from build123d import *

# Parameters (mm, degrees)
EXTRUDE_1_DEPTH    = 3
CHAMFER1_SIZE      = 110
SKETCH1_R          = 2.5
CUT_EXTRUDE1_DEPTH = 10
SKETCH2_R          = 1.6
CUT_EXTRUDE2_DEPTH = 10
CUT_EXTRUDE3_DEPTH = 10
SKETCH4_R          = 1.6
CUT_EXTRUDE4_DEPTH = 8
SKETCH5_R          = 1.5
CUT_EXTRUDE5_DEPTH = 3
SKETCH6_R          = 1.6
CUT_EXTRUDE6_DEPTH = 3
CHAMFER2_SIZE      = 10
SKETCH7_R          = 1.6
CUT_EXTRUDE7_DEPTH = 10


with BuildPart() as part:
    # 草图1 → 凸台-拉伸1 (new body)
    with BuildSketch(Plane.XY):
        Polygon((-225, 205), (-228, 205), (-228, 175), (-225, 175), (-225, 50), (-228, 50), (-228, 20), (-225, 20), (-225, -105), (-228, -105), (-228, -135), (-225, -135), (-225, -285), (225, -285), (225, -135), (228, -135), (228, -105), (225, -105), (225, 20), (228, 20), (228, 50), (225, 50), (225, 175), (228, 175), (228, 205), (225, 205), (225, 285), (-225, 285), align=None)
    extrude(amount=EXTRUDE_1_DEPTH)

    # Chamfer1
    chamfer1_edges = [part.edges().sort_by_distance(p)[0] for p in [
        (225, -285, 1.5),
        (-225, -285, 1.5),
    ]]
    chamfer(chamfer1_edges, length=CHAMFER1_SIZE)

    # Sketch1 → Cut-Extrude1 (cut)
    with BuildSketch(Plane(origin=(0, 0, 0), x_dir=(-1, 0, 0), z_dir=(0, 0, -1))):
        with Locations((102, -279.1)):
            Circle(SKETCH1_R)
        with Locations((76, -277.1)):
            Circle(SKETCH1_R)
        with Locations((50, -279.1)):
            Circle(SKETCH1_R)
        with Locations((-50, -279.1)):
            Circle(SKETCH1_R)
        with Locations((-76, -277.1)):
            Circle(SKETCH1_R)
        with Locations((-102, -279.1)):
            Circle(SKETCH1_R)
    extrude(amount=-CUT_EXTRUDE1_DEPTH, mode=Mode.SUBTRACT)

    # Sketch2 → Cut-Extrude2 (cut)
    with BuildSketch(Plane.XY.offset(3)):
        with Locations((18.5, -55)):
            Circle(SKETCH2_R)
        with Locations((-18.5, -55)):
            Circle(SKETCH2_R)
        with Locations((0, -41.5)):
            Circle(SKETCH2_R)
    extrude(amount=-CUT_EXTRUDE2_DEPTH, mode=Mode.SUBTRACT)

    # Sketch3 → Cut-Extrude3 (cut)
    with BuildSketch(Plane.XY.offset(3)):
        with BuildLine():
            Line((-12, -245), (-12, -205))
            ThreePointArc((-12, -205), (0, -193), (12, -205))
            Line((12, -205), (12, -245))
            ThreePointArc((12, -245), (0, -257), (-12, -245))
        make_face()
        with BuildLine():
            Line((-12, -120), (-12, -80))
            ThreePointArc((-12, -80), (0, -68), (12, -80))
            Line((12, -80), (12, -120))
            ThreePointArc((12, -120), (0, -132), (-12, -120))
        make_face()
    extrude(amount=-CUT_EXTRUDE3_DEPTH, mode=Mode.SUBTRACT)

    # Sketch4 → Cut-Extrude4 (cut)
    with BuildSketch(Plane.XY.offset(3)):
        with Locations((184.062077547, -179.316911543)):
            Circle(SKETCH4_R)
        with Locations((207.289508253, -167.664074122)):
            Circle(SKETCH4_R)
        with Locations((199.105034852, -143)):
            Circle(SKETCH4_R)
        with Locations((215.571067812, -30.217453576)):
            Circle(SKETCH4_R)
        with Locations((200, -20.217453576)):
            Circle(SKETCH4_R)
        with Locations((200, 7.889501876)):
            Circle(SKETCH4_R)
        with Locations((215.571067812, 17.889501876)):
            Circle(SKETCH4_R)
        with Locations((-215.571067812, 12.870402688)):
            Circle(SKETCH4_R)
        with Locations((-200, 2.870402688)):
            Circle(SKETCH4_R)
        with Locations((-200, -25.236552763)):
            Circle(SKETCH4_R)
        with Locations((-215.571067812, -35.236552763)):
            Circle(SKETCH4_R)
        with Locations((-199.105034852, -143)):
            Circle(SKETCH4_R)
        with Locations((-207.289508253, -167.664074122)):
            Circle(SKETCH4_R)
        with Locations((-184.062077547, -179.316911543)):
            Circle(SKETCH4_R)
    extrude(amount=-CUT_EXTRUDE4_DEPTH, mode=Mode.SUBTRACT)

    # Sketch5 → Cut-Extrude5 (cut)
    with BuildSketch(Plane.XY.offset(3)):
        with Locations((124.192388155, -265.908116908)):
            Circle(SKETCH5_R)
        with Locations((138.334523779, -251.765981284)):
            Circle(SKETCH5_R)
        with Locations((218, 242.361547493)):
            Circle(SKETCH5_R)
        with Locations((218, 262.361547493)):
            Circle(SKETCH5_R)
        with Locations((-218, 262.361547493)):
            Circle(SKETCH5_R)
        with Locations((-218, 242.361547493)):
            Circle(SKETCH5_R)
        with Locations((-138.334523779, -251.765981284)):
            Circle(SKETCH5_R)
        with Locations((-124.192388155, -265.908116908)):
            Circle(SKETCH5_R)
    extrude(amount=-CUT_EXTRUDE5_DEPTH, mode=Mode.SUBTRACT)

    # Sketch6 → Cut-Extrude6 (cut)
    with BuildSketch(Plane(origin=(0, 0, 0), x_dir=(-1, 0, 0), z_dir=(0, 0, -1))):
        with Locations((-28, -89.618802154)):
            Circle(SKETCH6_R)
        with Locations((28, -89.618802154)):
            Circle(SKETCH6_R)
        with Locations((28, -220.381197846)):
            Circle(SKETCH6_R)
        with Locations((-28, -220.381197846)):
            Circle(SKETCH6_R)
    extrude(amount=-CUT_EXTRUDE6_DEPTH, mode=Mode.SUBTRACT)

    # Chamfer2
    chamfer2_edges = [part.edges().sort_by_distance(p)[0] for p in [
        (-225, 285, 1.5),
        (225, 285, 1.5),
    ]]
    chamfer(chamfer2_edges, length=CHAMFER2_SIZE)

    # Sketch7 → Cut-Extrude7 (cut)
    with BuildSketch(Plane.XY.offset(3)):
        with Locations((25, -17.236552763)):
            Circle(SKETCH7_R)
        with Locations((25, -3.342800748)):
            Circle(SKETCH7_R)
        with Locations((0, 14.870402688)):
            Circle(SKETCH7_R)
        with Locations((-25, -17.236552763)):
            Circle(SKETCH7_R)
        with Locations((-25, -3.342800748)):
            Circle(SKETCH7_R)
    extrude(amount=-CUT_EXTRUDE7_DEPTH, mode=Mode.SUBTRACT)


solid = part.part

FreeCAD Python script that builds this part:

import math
import FreeCAD as App
import Part
import Sketcher

V = App.Vector


def edges_at(feature, points):
    """Names of the edges that pass closest to the given points."""
    edges = feature.Shape.Edges
    near = lambda p: min(range(len(edges)), key=lambda i: edges[i].distToShape(Part.Vertex(*p))[0])
    return sorted({f"Edge{near(p) + 1}" for p in points})


def add_polygon(sketch, points):
    """Adds a closed chain of lines whose ends are joined by coincident constraints."""
    first, n = sketch.GeometryCount, len(points)
    for a, b in zip(points, points[1:] + points[:1]):
        sketch.addGeometry(Part.LineSegment(App.Vector(*a, 0), App.Vector(*b, 0)), False)
    for i in range(n):
        sketch.addConstraint(Sketcher.Constraint("Coincident", first + i, 2, first + (i + 1) % n, 1))

doc = App.newDocument("Part")
body = doc.addObject("PartDesign::Body", "Body")

sketch1 = body.newObject("Sketcher::SketchObject", "Sketch")
sketch1.AttachmentSupport = (doc.getObject("XY_Plane"), [""])
sketch1.MapMode = "FlatFace"
add_polygon(sketch1, [(-225, 205), (-228, 205), (-228, 175), (-225, 175), (-225, 50), (-228, 50), (-228, 20), (-225, 20), (-225, -105), (-228, -105), (-228, -135), (-225, -135), (-225, -285), (225, -285), (225, -135), (228, -135), (228, -105), (225, -105), (225, 20), (228, 20), (228, 50), (225, 50), (225, 175), (228, 175), (228, 205), (225, 205), (225, 285), (-225, 285)])
sketch1.addConstraint([
    Sketcher.Constraint("Horizontal", 0),
    Sketcher.Constraint("Vertical", 1),
    Sketcher.Constraint("Horizontal", 2),
    Sketcher.Constraint("Vertical", 3),
    Sketcher.Constraint("Horizontal", 4),
    Sketcher.Constraint("Vertical", 5),
    Sketcher.Constraint("Horizontal", 6),
    Sketcher.Constraint("Vertical", 7),
    Sketcher.Constraint("Horizontal", 8),
    Sketcher.Constraint("Vertical", 9),
    Sketcher.Constraint("Horizontal", 10),
    Sketcher.Constraint("Vertical", 11),
    Sketcher.Constraint("Horizontal", 12),
    Sketcher.Constraint("Vertical", 13),
    Sketcher.Constraint("Horizontal", 14),
    Sketcher.Constraint("Vertical", 15),
    Sketcher.Constraint("Horizontal", 16),
    Sketcher.Constraint("Vertical", 17),
    Sketcher.Constraint("Horizontal", 18),
    Sketcher.Constraint("Vertical", 19),
    Sketcher.Constraint("Horizontal", 20),
    Sketcher.Constraint("Vertical", 21),
    Sketcher.Constraint("Horizontal", 22),
    Sketcher.Constraint("Vertical", 23),
    Sketcher.Constraint("Horizontal", 24),
    Sketcher.Constraint("Vertical", 25),
    Sketcher.Constraint("Horizontal", 26),
    Sketcher.Constraint("Vertical", 27),
    Sketcher.Constraint("Symmetric", 11, 2, 25, 2, -1, 1),
    Sketcher.Constraint("Symmetric", 10, 2, 13, 2, -2),
    Sketcher.Constraint("Symmetric", 8, 2, 15, 2, -2),
    Sketcher.Constraint("Symmetric", 6, 2, 17, 2, -2),
    Sketcher.Constraint("Symmetric", 4, 2, 19, 2, -2),
    Sketcher.Constraint("Symmetric", 2, 2, 21, 2, -2),
    Sketcher.Constraint("Symmetric", 0, 2, 23, 2, -2),
    Sketcher.Constraint("Vertical", 1, 2, 4, 2),
    Sketcher.Constraint("Vertical", 3, 2, 6, 2),
    Sketcher.Constraint("Vertical", 5, 2, 8, 2),
    Sketcher.Constraint("Vertical", 7, 2, 10, 2),
    Sketcher.Constraint("Vertical", 11, 2, 26, 2),
    Sketcher.Constraint("Equal", 1, 5),
    Sketcher.Constraint("Equal", 3, 7),
    Sketcher.Constraint("Equal", 5, 9),
    Sketcher.Constraint("DistanceX", 0, 2, 0, 1, 3.0),
    Sketcher.Constraint("DistanceX", 12, 1, 12, 2, 450.0),
    Sketcher.Constraint("DistanceY", 1, 2, 1, 1, 30.0),
    Sketcher.Constraint("DistanceY", 3, 2, 3, 1, 125.0),
    Sketcher.Constraint("DistanceY", 11, 2, 11, 1, 150.0),
    Sketcher.Constraint("DistanceY", 25, 1, 25, 2, 80.0),
])
pad1 = body.newObject("PartDesign::Pad", "Pad")
pad1.Profile = sketch1
pad1.Length = 3
doc.recompute()

chamfer = body.newObject("PartDesign::Chamfer", "Chamfer")
chamfer.Base = (pad1, edges_at(pad1, [(225, -285, 1.5), (-225, -285, 1.5)]))
chamfer.Size = 110

sketch2 = body.newObject("Sketcher::SketchObject", "Sketch001")
sketch2.AttachmentSupport = (doc.getObject("XY_Plane"), [""])
sketch2.MapMode = "FlatFace"
sketch2.addGeometry([
    Part.Circle(V(-102, -279.1, 0), V(0, 0, 1), 2.5),
    Part.Circle(V(-76, -277.1, 0), V(0, 0, 1), 2.5),
    Part.Circle(V(-50, -279.1, 0), V(0, 0, 1), 2.5),
    Part.Circle(V(50, -279.1, 0), V(0, 0, 1), 2.5),
    Part.Circle(V(76, -277.1, 0), V(0, 0, 1), 2.5),
    Part.Circle(V(102, -279.1, 0), V(0, 0, 1), 2.5),
], False)
sketch2.addConstraint([
    Sketcher.Constraint("Equal", 0, 1),
    Sketcher.Constraint("Equal", 1, 2),
    Sketcher.Constraint("Equal", 2, 3),
    Sketcher.Constraint("Equal", 3, 4),
    Sketcher.Constraint("Equal", 4, 5),
    Sketcher.Constraint("Symmetric", 2, 3, 3, 3, -2),
    Sketcher.Constraint("Symmetric", 1, 3, 4, 3, -2),
    Sketcher.Constraint("Symmetric", 0, 3, 5, 3, -2),
    Sketcher.Constraint("Horizontal", 0, 3, 2, 3),
    Sketcher.Constraint("Diameter", 0, 5.0),
    Sketcher.Constraint("DistanceX", 0, 3, -1, 1, 102.0),
    Sketcher.Constraint("DistanceX", 1, 3, -1, 1, 76.0),
    Sketcher.Constraint("DistanceX", 2, 3, -1, 1, 50.0),
    Sketcher.Constraint("DistanceY", 0, 3, 1, 3, 2.0),
    Sketcher.Constraint("DistanceY", 0, 3, -1, 1, 279.1),
])
pocket1 = body.newObject("PartDesign::Pocket", "Pocket")
pocket1.Profile = sketch2
pocket1.Length = 10
pocket1.Reversed = True

sketch3 = body.newObject("Sketcher::SketchObject", "Sketch002")
sketch3.AttachmentSupport = (doc.getObject("XY_Plane"), [""])
sketch3.MapMode = "FlatFace"
sketch3.AttachmentOffset = App.Placement(V(0, 0, 3), App.Rotation())
sketch3.addGeometry([
    Part.Circle(V(18.5, -55, 0), V(0, 0, 1), 1.6),
    Part.Circle(V(-18.5, -55, 0), V(0, 0, 1), 1.6),
    Part.Circle(V(0, -41.5, 0), V(0, 0, 1), 1.6),
], False)
sketch3.addConstraint([
    Sketcher.Constraint("Equal", 0, 1),
    Sketcher.Constraint("Equal", 1, 2),
    Sketcher.Constraint("Symmetric", 0, 3, 1, 3, -2),
    Sketcher.Constraint("PointOnObject", 2, 3, -2),
    Sketcher.Constraint("Diameter", 0, 3.2),
    Sketcher.Constraint("DistanceY", 0, 3, -1, 1, 55.0),
    Sketcher.Constraint("DistanceX", 1, 3, 0, 3, 37.0),
    Sketcher.Constraint("DistanceY", 2, 3, -1, 1, 41.5),
])
pocket2 = body.newObject("PartDesign::Pocket", "Pocket001")
pocket2.Profile = sketch3
pocket2.Length = 10

sketch4 = body.newObject("Sketcher::SketchObject", "Sketch003")
sketch4.AttachmentSupport = (doc.getObject("XY_Plane"), [""])
sketch4.MapMode = "FlatFace"
sketch4.AttachmentOffset = App.Placement(V(0, 0, 3), App.Rotation())
sketch4.addGeometry([
    Part.LineSegment(V(-12, -205, 0), V(-12, -245, 0)),
    Part.ArcOfCircle(Part.Circle(V(0, -245, 0), V(0, 0, 1), 12), math.radians(180), math.radians(360)),
    Part.LineSegment(V(12, -245, 0), V(12, -205, 0)),
    Part.ArcOfCircle(Part.Circle(V(0, -205, 0), V(0, 0, 1), 12), math.radians(0), math.radians(180)),
    Part.LineSegment(V(-12, -80, 0), V(-12, -120, 0)),
    Part.ArcOfCircle(Part.Circle(V(0, -120, 0), V(0, 0, 1), 12), math.radians(180), math.radians(360)),
    Part.LineSegment(V(12, -120, 0), V(12, -80, 0)),
    Part.ArcOfCircle(Part.Circle(V(0, -80, 0), V(0, 0, 1), 12), math.radians(0), math.radians(180)),
], False)
sketch4.addConstraint([
    Sketcher.Constraint("Tangent", 0, 2, 1, 1),
    Sketcher.Constraint("Tangent", 1, 2, 2, 1),
    Sketcher.Constraint("Tangent", 2, 2, 3, 1),
    Sketcher.Constraint("Tangent", 3, 2, 0, 1),
    Sketcher.Constraint("Tangent", 4, 2, 5, 1),
    Sketcher.Constraint("Tangent", 5, 2, 6, 1),
    Sketcher.Constraint("Tangent", 6, 2, 7, 1),
    Sketcher.Constraint("Tangent", 7, 2, 4, 1),
    Sketcher.Constraint("Vertical", 0),
    Sketcher.Constraint("Vertical", 2),
    Sketcher.Constraint("Vertical", 4),
    Sketcher.Constraint("Vertical", 6),
    Sketcher.Constraint("Equal", 3, 5),
    Sketcher.Constraint("PointOnObject", 1, 3, -2),
    Sketcher.Constraint("PointOnObject", 5, 3, -2),
    Sketcher.Constraint("Equal", 2, 4),
    Sketcher.Constraint("Radius", 1, 12.0),
    Sketcher.Constraint("DistanceY", 0, 2, 0, 1, 40.0),
    Sketcher.Constraint("DistanceY", 1, 3, -1, 1, 245.0),
    Sketcher.Constraint("DistanceY", 5, 3, -1, 1, 120.0),
])
pocket3 = body.newObject("PartDesign::Pocket", "Pocket002")
pocket3.Profile = sketch4
pocket3.Length = 10

sketch5 = body.newObject("Sketcher::SketchObject", "Sketch004")
sketch5.AttachmentSupport = (doc.getObject("XY_Plane"), [""])
sketch5.MapMode = "FlatFace"
sketch5.AttachmentOffset = App.Placement(V(0, 0, 3), App.Rotation())
sketch5.addGeometry([
    Part.Circle(V(184.062078, -179.316912, 0), V(0, 0, 1), 1.6),
    Part.Circle(V(207.289508, -167.664074, 0), V(0, 0, 1), 1.6),
    Part.Circle(V(199.105035, -143, 0), V(0, 0, 1), 1.6),
    Part.Circle(V(215.571068, -30.217454, 0), V(0, 0, 1), 1.6),
    Part.Circle(V(200, -20.217454, 0), V(0, 0, 1), 1.6),
    Part.Circle(V(200, 7.889502, 0), V(0, 0, 1), 1.6),
    Part.Circle(V(215.571068, 17.889502, 0), V(0, 0, 1), 1.6),
    Part.Circle(V(-215.571068, 12.870403, 0), V(0, 0, 1), 1.6),
    Part.Circle(V(-200, 2.870403, 0), V(0, 0, 1), 1.6),
    Part.Circle(V(-200, -25.236553, 0), V(0, 0, 1), 1.6),
    Part.Circle(V(-215.571068, -35.236553, 0), V(0, 0, 1), 1.6),
    Part.Circle(V(-199.105035, -143, 0), V(0, 0, 1), 1.6),
    Part.Circle(V(-207.289508, -167.664074, 0), V(0, 0, 1), 1.6),
    Part.Circle(V(-184.062078, -179.316912, 0), V(0, 0, 1), 1.6),
], False)
sketch5.addConstraint([
    Sketcher.Constraint("Equal", 0, 1),
    Sketcher.Constraint("Equal", 1, 2),
    Sketcher.Constraint("Equal", 2, 3),
    Sketcher.Constraint("Equal", 3, 4),
    Sketcher.Constraint("Equal", 4, 5),
    Sketcher.Constraint("Equal", 5, 6),
    Sketcher.Constraint("Equal", 6, 7),
    Sketcher.Constraint("Equal", 7, 8),
    Sketcher.Constraint("Equal", 8, 9),
    Sketcher.Constraint("Equal", 9, 10),
    Sketcher.Constraint("Equal", 10, 11),
    Sketcher.Constraint("Equal", 11, 12),
    Sketcher.Constraint("Equal", 12, 13),
    Sketcher.Constraint("Symmetric", 2, 3, 11, 3, -2),
    Sketcher.Constraint("Symmetric", 1, 3, 12, 3, -2),
    Sketcher.Constraint("Symmetric", 0, 3, 13, 3, -2),
    Sketcher.Constraint("Vertical", 4, 3, 5, 3),
    Sketcher.Constraint("Vertical", 3, 3, 6, 3),
    Sketcher.Constraint("Vertical", 8, 3, 9, 3),
    Sketcher.Constraint("Vertical", 7, 3, 10, 3),
    Sketcher.Constraint("Diameter", 0, 3.2),
    Sketcher.Constraint("DistanceY", 2, 3, -1, 1, 143.0),
    Sketcher.Constraint("DistanceX", -1, 1, 4, 3, 200.0),
    Sketcher.Constraint("DistanceX", 8, 3, -1, 1, 200.0),
    Sketcher.Constraint("DistanceY", 3, 3, 4, 3, 10.0),
    Sketcher.Constraint("DistanceY", 5, 3, 6, 3, 10.0),
    Sketcher.Constraint("DistanceY", 8, 3, 7, 3, 10.0),
    Sketcher.Constraint("DistanceY", 10, 3, 9, 3, 10.0),
    Sketcher.Constraint("DistanceY", -1, 1, 5, 3, 7.889502),
    Sketcher.Constraint("DistanceY", 5, 3, 7, 3, 4.980901),
    Sketcher.Constraint("DistanceY", 9, 3, 4, 3, 5.019099),
    Sketcher.Constraint("DistanceY", 0, 3, -1, 1, 179.316912),
    Sketcher.Constraint("DistanceX", -1, 1, 1, 3, 207.289508),
    Sketcher.Constraint("DistanceX", 0, 3, 1, 3, 23.227431),
    Sketcher.Constraint("DistanceX", 1, 3, 3, 3, 8.28156),
    Sketcher.Constraint("DistanceY", 1, 3, 3, 3, 137.446621),
    Sketcher.Constraint("DistanceY", 0, 3, 9, 3, 154.080359),
    Sketcher.Constraint("DistanceX", 10, 3, 12, 3, 8.28156),
    Sketcher.Constraint("DistanceX", -1, 1, 2, 3, 199.105035),
])
pocket4 = body.newObject("PartDesign::Pocket", "Pocket003")
pocket4.Profile = sketch5
pocket4.Length = 8

sketch6 = body.newObject("Sketcher::SketchObject", "Sketch005")
sketch6.AttachmentSupport = (doc.getObject("XY_Plane"), [""])
sketch6.MapMode = "FlatFace"
sketch6.AttachmentOffset = App.Placement(V(0, 0, 3), App.Rotation())
sketch6.addGeometry([
    Part.Circle(V(124.192388, -265.908117, 0), V(0, 0, 1), 1.5),
    Part.Circle(V(138.334524, -251.765981, 0), V(0, 0, 1), 1.5),
    Part.Circle(V(218, 242.361547, 0), V(0, 0, 1), 1.5),
    Part.Circle(V(218, 262.361547, 0), V(0, 0, 1), 1.5),
    Part.Circle(V(-218, 262.361547, 0), V(0, 0, 1), 1.5),
    Part.Circle(V(-218, 242.361547, 0), V(0, 0, 1), 1.5),
    Part.Circle(V(-138.334524, -251.765981, 0), V(0, 0, 1), 1.5),
    Part.Circle(V(-124.192388, -265.908117, 0), V(0, 0, 1), 1.5),
], False)
sketch6.addConstraint([
    Sketcher.Constraint("Equal", 0, 1),
    Sketcher.Constraint("Equal", 1, 2),
    Sketcher.Constraint("Equal", 2, 3),
    Sketcher.Constraint("Equal", 3, 4),
    Sketcher.Constraint("Equal", 4, 5),
    Sketcher.Constraint("Equal", 5, 6),
    Sketcher.Constraint("Equal", 6, 7),
    Sketcher.Constraint("Symmetric", 3, 3, 4, 3, -2),
    Sketcher.Constraint("Symmetric", 2, 3, 5, 3, -2),
    Sketcher.Constraint("Symmetric", 1, 3, 6, 3, -2),
    Sketcher.Constraint("Symmetric", 0, 3, 7, 3, -2),
    Sketcher.Constraint("Vertical", 2, 3, 3, 3),
    Sketcher.Constraint("Diameter", 0, 3.0),
    Sketcher.Constraint("DistanceX", -1, 1, 2, 3, 218.0),
    Sketcher.Constraint("DistanceY", 2, 3, 3, 3, 20.0),
    Sketcher.Constraint("DistanceX", -1, 1, 0, 3, 124.192388),
    Sketcher.Constraint("DistanceY", 1, 3, -1, 1, 251.765981),
    Sketcher.Constraint("DistanceY", 1, 3, 2, 3, 494.127529),
    Sketcher.Constraint("DistanceX", 6, 3, 0, 3, 262.526912),
    Sketcher.Constraint("DistanceY", 0, 3, -1, 1, 265.908117),
])
pocket5 = body.newObject("PartDesign::Pocket", "Pocket004")
pocket5.Profile = sketch6
pocket5.Length = 3

sketch7 = body.newObject("Sketcher::SketchObject", "Sketch006")
sketch7.AttachmentSupport = (doc.getObject("XY_Plane"), [""])
sketch7.MapMode = "FlatFace"
sketch7.addGeometry([
    Part.Circle(V(28, -89.618802, 0), V(0, 0, 1), 1.6),
    Part.Circle(V(-28, -89.618802, 0), V(0, 0, 1), 1.6),
    Part.Circle(V(-28, -220.381198, 0), V(0, 0, 1), 1.6),
    Part.Circle(V(28, -220.381198, 0), V(0, 0, 1), 1.6),
], False)
sketch7.addConstraint([
    Sketcher.Constraint("Equal", 0, 1),
    Sketcher.Constraint("Equal", 1, 2),
    Sketcher.Constraint("Equal", 2, 3),
    Sketcher.Constraint("Symmetric", 0, 3, 1, 3, -2),
    Sketcher.Constraint("Symmetric", 2, 3, 3, 3, -2),
    Sketcher.Constraint("Vertical", 1, 3, 2, 3),
    Sketcher.Constraint("Diameter", 0, 3.2),
    Sketcher.Constraint("DistanceX", -1, 1, 0, 3, 28.0),
    Sketcher.Constraint("DistanceY", 0, 3, -1, 1, 89.618802),
    Sketcher.Constraint("DistanceY", 2, 3, -1, 1, 220.381198),
])
pocket6 = body.newObject("PartDesign::Pocket", "Pocket005")
pocket6.Profile = sketch7
pocket6.Length = 3
pocket6.Reversed = True
doc.recompute()

chamfer2 = body.newObject("PartDesign::Chamfer", "Chamfer001")
chamfer2.Base = (pocket6, edges_at(pocket6, [(-225, 285, 1.5), (225, 285, 1.5)]))
chamfer2.Size = 10

sketch8 = body.newObject("Sketcher::SketchObject", "Sketch007")
sketch8.AttachmentSupport = (doc.getObject("XY_Plane"), [""])
sketch8.MapMode = "FlatFace"
sketch8.AttachmentOffset = App.Placement(V(0, 0, 3), App.Rotation())
sketch8.addGeometry([
    Part.Circle(V(25, -17.236553, 0), V(0, 0, 1), 1.6),
    Part.Circle(V(25, -3.342801, 0), V(0, 0, 1), 1.6),
    Part.Circle(V(0, 14.870403, 0), V(0, 0, 1), 1.6),
    Part.Circle(V(-25, -17.236553, 0), V(0, 0, 1), 1.6),
    Part.Circle(V(-25, -3.342801, 0), V(0, 0, 1), 1.6),
], False)
sketch8.addConstraint([
    Sketcher.Constraint("Equal", 0, 1),
    Sketcher.Constraint("Equal", 1, 2),
    Sketcher.Constraint("Equal", 2, 3),
    Sketcher.Constraint("Equal", 3, 4),
    Sketcher.Constraint("Symmetric", 0, 3, 3, 3, -2),
    Sketcher.Constraint("Symmetric", 1, 3, 4, 3, -2),
    Sketcher.Constraint("PointOnObject", 2, 3, -2),
    Sketcher.Constraint("Vertical", 0, 3, 1, 3),
    Sketcher.Constraint("Diameter", 0, 3.2),
    Sketcher.Constraint("DistanceX", -1, 1, 0, 3, 25.0),
    Sketcher.Constraint("DistanceY", 1, 3, -1, 1, 3.342801),
    Sketcher.Constraint("DistanceY", 0, 3, -1, 1, 17.236553),
    Sketcher.Constraint("DistanceY", -1, 1, 2, 3, 14.870403),
])
pocket7 = body.newObject("PartDesign::Pocket", "Pocket006")
pocket7.Profile = sketch8
pocket7.Length = 10

doc.recompute()
